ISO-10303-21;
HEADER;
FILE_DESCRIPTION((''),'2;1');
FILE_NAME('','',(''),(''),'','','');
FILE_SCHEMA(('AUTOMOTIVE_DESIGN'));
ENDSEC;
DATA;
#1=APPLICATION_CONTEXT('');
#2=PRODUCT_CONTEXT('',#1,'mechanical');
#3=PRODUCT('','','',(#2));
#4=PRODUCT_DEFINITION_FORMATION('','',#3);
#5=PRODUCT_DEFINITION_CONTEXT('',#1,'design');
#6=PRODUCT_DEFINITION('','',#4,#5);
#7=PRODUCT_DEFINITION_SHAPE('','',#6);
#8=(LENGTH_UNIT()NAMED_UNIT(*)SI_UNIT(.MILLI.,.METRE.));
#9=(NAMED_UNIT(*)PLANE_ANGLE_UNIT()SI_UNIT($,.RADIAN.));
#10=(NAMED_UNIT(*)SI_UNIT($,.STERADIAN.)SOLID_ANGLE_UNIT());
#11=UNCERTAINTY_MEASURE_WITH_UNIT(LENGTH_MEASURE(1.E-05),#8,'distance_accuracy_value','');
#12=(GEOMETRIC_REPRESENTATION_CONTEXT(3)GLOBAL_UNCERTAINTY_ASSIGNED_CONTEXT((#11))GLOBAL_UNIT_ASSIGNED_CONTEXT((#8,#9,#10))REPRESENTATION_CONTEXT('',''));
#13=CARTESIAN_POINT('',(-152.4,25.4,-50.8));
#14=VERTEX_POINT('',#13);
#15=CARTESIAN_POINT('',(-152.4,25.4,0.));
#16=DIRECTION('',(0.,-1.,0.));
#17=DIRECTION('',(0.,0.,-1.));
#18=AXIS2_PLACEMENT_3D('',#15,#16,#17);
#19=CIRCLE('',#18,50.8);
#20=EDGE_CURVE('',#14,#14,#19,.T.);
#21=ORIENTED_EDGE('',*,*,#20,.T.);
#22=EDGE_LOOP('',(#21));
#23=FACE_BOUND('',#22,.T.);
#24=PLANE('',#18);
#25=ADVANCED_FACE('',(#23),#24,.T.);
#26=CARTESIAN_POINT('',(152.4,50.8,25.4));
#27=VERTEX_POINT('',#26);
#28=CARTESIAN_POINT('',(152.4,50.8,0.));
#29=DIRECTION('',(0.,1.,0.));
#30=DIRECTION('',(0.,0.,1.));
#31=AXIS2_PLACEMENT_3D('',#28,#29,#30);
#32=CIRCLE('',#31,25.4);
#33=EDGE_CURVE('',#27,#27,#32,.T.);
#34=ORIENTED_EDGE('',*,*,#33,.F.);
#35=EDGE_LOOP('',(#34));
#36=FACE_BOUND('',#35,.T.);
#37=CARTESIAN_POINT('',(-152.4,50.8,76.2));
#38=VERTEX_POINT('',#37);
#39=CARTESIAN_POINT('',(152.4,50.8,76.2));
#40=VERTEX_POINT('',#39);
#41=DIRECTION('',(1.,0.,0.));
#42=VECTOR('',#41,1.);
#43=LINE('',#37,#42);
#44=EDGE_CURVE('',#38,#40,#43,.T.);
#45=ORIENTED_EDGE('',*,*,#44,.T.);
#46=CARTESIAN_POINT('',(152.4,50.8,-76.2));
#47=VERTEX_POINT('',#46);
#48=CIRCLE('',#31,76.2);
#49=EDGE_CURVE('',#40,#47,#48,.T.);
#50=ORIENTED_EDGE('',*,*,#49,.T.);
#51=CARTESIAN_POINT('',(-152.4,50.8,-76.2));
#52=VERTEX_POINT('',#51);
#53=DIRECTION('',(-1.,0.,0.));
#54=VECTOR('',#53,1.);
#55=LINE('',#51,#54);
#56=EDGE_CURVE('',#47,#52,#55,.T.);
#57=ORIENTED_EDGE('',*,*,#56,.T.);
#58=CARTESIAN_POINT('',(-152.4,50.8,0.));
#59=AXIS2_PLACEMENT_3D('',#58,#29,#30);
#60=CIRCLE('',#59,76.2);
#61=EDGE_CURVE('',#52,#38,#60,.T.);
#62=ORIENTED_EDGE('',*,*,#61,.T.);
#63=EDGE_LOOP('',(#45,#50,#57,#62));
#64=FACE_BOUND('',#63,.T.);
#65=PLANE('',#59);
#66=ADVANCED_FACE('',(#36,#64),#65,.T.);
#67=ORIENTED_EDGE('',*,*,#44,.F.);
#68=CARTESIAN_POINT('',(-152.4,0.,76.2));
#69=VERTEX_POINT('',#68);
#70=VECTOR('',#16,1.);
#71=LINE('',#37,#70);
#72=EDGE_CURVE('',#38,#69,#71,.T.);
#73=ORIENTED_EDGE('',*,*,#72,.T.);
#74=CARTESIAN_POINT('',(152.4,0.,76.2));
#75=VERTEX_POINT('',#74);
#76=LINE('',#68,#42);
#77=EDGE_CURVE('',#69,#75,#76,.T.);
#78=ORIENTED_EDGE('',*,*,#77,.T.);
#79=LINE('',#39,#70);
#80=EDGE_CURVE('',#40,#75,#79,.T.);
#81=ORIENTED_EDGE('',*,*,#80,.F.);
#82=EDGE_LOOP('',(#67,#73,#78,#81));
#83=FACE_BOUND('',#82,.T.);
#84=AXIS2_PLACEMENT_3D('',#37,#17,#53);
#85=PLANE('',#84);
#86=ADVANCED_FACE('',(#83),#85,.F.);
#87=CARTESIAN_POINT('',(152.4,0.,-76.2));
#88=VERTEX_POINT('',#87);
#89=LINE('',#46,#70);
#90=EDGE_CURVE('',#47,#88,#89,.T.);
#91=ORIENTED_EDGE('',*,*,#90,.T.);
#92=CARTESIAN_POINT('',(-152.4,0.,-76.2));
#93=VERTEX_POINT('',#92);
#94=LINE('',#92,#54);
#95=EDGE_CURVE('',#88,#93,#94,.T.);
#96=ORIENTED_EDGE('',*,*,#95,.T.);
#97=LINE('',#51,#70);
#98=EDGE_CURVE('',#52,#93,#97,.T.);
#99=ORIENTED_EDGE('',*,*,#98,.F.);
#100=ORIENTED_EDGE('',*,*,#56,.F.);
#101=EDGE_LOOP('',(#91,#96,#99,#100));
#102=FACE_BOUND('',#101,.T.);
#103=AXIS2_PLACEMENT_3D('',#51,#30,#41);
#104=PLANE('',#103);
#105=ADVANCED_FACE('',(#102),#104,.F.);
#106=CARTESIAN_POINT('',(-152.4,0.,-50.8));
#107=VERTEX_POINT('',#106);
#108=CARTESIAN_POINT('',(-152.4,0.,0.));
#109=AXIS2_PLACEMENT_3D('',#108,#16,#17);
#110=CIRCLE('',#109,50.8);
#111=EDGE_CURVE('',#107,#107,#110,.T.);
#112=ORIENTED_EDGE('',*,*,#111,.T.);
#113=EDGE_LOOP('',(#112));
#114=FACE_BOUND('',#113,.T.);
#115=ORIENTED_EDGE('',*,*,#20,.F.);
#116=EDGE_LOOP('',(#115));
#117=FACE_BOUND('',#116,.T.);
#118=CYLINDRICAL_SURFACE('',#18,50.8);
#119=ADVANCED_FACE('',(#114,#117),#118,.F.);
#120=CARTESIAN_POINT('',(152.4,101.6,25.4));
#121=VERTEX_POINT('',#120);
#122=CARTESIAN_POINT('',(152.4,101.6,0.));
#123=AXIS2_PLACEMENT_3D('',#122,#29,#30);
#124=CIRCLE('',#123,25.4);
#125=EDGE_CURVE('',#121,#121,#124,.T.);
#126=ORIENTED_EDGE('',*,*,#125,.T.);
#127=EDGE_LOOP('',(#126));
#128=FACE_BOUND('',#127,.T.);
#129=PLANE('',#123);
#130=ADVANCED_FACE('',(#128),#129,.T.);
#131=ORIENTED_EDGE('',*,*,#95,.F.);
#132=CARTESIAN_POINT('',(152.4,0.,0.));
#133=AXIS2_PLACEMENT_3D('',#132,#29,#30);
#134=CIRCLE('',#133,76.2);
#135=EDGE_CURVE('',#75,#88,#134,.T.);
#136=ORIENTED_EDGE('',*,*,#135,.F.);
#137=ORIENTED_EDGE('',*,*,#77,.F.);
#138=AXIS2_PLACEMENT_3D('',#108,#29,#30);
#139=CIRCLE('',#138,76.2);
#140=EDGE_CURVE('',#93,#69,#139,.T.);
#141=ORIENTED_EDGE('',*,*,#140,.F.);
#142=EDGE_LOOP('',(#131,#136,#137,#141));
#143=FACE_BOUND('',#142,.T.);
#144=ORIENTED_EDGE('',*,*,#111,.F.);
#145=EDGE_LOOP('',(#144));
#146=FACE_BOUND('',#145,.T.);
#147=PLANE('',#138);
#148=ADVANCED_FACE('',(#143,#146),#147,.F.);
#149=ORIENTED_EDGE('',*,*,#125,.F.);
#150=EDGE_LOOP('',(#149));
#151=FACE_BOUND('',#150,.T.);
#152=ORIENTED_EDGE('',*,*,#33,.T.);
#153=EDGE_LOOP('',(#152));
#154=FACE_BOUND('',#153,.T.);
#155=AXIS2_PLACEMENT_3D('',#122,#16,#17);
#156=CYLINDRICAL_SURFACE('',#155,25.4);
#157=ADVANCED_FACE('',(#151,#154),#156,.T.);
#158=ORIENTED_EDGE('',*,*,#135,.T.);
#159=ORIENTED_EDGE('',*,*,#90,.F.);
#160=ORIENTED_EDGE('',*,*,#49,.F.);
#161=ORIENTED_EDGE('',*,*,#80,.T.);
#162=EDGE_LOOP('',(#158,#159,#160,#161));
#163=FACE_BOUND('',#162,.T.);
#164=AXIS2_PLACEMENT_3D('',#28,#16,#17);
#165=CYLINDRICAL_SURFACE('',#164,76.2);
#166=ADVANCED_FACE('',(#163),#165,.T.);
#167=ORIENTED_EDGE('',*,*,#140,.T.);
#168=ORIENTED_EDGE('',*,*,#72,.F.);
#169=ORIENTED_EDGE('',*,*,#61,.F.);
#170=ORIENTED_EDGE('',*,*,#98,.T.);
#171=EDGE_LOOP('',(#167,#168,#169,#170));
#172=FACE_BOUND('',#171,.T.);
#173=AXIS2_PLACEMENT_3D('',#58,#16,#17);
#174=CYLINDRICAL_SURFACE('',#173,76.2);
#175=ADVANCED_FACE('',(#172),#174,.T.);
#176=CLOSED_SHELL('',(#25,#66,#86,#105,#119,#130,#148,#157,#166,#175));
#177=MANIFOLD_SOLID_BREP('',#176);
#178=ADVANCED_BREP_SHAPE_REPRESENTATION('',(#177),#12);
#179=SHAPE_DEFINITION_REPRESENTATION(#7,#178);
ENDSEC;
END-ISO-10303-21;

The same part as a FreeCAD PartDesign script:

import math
import FreeCAD as App
import Part
import Sketcher
from FreeCAD import Vector
Q = App.Units.Quantity

doc = App.newDocument("Part")
body = doc.addObject("PartDesign::Body", "Body")

# Sketch on XZ plane
sketch1 = body.newObject("Sketcher::SketchObject", "Sketch")
sketch1.AttachmentSupport = (doc.getObject("XZ_Plane"), [""])
sketch1.MapMode = "FlatFace"
sketch1.addGeometry([
    Part.LineSegment(Vector(152, -76, 0), Vector(-152, -76, 0)),
    Part.ArcOfCircle(Part.Circle(Vector(-152, 0, 0), Vector(0, 0, 1), 76), math.radians(90), math.radians(270)),
    Part.LineSegment(Vector(-152, 76, 0), Vector(152, 76, 0)),
    Part.ArcOfCircle(Part.Circle(Vector(152, 0, 0), Vector(0, 0, 1), 76), math.radians(-90), math.radians(90)),
], False)
sketch1.addConstraint([
    Sketcher.Constraint("Tangent", 0, 2, 1, 2),
    Sketcher.Constraint("Tangent", 1, 1, 2, 1),
    Sketcher.Constraint("Tangent", 2, 2, 3, 2),
    Sketcher.Constraint("Tangent", 3, 1, 0, 1),
    Sketcher.Constraint("Horizontal", 0),
    Sketcher.Constraint("Horizontal", 2),
    Sketcher.Constraint("Symmetric", 1, 3, 3, 3, -1, 1),
    Sketcher.Constraint("Radius", 1, Q("3 in")),
    Sketcher.Constraint("DistanceX", 0, 2, 0, 1, Q("12 in")),
])
pad1 = body.newObject("PartDesign::Pad", "Pad")
pad1.Profile = sketch1
pad1.Length = Q("2 in")
pad1.Reversed = True

# Sketch on XZ plane
sketch2 = body.newObject("Sketcher::SketchObject", "Sketch001")
sketch2.AttachmentSupport = (doc.getObject("XZ_Plane"), [""])
sketch2.MapMode = "FlatFace"
sketch2.addGeometry(Part.Circle(Vector(-152, 0, 0), Vector(0, 0, 1), 51), False)
sketch2.addConstraint([
    Sketcher.Constraint("PointOnObject", 0, 3, -1),
    Sketcher.Constraint("Diameter", 0, Q("4 in")),
    Sketcher.Constraint("DistanceX", 0, 3, -1, 1, Q("6 in")),
])
pocket1 = body.newObject("PartDesign::Pocket", "Pocket")
pocket1.Profile = sketch2
pocket1.Length = Q("1 in")

# Sketch on XZ plane
sketch3 = body.newObject("Sketcher::SketchObject", "Sketch002")
sketch3.AttachmentSupport = (doc.getObject("XZ_Plane"), [""])
sketch3.MapMode = "FlatFace"
sketch3.AttachmentOffset = App.Placement(Vector(0, 0, -2 * 25.4), App.Rotation())
sketch3.addGeometry(Part.Circle(Vector(152, 0, 0), Vector(0, 0, 1), 25), False)
sketch3.addConstraint([
    Sketcher.Constraint("PointOnObject", 0, 3, -1),
    Sketcher.Constraint("Diameter", 0, Q("2 in")),
    Sketcher.Constraint("DistanceX", -1, 1, 0, 3, Q("6 in")),
])
pad2 = body.newObject("PartDesign::Pad", "Pad001")
pad2.Profile = sketch3
pad2.Length = Q("2 in")
pad2.Reversed = True

doc.recompute()
